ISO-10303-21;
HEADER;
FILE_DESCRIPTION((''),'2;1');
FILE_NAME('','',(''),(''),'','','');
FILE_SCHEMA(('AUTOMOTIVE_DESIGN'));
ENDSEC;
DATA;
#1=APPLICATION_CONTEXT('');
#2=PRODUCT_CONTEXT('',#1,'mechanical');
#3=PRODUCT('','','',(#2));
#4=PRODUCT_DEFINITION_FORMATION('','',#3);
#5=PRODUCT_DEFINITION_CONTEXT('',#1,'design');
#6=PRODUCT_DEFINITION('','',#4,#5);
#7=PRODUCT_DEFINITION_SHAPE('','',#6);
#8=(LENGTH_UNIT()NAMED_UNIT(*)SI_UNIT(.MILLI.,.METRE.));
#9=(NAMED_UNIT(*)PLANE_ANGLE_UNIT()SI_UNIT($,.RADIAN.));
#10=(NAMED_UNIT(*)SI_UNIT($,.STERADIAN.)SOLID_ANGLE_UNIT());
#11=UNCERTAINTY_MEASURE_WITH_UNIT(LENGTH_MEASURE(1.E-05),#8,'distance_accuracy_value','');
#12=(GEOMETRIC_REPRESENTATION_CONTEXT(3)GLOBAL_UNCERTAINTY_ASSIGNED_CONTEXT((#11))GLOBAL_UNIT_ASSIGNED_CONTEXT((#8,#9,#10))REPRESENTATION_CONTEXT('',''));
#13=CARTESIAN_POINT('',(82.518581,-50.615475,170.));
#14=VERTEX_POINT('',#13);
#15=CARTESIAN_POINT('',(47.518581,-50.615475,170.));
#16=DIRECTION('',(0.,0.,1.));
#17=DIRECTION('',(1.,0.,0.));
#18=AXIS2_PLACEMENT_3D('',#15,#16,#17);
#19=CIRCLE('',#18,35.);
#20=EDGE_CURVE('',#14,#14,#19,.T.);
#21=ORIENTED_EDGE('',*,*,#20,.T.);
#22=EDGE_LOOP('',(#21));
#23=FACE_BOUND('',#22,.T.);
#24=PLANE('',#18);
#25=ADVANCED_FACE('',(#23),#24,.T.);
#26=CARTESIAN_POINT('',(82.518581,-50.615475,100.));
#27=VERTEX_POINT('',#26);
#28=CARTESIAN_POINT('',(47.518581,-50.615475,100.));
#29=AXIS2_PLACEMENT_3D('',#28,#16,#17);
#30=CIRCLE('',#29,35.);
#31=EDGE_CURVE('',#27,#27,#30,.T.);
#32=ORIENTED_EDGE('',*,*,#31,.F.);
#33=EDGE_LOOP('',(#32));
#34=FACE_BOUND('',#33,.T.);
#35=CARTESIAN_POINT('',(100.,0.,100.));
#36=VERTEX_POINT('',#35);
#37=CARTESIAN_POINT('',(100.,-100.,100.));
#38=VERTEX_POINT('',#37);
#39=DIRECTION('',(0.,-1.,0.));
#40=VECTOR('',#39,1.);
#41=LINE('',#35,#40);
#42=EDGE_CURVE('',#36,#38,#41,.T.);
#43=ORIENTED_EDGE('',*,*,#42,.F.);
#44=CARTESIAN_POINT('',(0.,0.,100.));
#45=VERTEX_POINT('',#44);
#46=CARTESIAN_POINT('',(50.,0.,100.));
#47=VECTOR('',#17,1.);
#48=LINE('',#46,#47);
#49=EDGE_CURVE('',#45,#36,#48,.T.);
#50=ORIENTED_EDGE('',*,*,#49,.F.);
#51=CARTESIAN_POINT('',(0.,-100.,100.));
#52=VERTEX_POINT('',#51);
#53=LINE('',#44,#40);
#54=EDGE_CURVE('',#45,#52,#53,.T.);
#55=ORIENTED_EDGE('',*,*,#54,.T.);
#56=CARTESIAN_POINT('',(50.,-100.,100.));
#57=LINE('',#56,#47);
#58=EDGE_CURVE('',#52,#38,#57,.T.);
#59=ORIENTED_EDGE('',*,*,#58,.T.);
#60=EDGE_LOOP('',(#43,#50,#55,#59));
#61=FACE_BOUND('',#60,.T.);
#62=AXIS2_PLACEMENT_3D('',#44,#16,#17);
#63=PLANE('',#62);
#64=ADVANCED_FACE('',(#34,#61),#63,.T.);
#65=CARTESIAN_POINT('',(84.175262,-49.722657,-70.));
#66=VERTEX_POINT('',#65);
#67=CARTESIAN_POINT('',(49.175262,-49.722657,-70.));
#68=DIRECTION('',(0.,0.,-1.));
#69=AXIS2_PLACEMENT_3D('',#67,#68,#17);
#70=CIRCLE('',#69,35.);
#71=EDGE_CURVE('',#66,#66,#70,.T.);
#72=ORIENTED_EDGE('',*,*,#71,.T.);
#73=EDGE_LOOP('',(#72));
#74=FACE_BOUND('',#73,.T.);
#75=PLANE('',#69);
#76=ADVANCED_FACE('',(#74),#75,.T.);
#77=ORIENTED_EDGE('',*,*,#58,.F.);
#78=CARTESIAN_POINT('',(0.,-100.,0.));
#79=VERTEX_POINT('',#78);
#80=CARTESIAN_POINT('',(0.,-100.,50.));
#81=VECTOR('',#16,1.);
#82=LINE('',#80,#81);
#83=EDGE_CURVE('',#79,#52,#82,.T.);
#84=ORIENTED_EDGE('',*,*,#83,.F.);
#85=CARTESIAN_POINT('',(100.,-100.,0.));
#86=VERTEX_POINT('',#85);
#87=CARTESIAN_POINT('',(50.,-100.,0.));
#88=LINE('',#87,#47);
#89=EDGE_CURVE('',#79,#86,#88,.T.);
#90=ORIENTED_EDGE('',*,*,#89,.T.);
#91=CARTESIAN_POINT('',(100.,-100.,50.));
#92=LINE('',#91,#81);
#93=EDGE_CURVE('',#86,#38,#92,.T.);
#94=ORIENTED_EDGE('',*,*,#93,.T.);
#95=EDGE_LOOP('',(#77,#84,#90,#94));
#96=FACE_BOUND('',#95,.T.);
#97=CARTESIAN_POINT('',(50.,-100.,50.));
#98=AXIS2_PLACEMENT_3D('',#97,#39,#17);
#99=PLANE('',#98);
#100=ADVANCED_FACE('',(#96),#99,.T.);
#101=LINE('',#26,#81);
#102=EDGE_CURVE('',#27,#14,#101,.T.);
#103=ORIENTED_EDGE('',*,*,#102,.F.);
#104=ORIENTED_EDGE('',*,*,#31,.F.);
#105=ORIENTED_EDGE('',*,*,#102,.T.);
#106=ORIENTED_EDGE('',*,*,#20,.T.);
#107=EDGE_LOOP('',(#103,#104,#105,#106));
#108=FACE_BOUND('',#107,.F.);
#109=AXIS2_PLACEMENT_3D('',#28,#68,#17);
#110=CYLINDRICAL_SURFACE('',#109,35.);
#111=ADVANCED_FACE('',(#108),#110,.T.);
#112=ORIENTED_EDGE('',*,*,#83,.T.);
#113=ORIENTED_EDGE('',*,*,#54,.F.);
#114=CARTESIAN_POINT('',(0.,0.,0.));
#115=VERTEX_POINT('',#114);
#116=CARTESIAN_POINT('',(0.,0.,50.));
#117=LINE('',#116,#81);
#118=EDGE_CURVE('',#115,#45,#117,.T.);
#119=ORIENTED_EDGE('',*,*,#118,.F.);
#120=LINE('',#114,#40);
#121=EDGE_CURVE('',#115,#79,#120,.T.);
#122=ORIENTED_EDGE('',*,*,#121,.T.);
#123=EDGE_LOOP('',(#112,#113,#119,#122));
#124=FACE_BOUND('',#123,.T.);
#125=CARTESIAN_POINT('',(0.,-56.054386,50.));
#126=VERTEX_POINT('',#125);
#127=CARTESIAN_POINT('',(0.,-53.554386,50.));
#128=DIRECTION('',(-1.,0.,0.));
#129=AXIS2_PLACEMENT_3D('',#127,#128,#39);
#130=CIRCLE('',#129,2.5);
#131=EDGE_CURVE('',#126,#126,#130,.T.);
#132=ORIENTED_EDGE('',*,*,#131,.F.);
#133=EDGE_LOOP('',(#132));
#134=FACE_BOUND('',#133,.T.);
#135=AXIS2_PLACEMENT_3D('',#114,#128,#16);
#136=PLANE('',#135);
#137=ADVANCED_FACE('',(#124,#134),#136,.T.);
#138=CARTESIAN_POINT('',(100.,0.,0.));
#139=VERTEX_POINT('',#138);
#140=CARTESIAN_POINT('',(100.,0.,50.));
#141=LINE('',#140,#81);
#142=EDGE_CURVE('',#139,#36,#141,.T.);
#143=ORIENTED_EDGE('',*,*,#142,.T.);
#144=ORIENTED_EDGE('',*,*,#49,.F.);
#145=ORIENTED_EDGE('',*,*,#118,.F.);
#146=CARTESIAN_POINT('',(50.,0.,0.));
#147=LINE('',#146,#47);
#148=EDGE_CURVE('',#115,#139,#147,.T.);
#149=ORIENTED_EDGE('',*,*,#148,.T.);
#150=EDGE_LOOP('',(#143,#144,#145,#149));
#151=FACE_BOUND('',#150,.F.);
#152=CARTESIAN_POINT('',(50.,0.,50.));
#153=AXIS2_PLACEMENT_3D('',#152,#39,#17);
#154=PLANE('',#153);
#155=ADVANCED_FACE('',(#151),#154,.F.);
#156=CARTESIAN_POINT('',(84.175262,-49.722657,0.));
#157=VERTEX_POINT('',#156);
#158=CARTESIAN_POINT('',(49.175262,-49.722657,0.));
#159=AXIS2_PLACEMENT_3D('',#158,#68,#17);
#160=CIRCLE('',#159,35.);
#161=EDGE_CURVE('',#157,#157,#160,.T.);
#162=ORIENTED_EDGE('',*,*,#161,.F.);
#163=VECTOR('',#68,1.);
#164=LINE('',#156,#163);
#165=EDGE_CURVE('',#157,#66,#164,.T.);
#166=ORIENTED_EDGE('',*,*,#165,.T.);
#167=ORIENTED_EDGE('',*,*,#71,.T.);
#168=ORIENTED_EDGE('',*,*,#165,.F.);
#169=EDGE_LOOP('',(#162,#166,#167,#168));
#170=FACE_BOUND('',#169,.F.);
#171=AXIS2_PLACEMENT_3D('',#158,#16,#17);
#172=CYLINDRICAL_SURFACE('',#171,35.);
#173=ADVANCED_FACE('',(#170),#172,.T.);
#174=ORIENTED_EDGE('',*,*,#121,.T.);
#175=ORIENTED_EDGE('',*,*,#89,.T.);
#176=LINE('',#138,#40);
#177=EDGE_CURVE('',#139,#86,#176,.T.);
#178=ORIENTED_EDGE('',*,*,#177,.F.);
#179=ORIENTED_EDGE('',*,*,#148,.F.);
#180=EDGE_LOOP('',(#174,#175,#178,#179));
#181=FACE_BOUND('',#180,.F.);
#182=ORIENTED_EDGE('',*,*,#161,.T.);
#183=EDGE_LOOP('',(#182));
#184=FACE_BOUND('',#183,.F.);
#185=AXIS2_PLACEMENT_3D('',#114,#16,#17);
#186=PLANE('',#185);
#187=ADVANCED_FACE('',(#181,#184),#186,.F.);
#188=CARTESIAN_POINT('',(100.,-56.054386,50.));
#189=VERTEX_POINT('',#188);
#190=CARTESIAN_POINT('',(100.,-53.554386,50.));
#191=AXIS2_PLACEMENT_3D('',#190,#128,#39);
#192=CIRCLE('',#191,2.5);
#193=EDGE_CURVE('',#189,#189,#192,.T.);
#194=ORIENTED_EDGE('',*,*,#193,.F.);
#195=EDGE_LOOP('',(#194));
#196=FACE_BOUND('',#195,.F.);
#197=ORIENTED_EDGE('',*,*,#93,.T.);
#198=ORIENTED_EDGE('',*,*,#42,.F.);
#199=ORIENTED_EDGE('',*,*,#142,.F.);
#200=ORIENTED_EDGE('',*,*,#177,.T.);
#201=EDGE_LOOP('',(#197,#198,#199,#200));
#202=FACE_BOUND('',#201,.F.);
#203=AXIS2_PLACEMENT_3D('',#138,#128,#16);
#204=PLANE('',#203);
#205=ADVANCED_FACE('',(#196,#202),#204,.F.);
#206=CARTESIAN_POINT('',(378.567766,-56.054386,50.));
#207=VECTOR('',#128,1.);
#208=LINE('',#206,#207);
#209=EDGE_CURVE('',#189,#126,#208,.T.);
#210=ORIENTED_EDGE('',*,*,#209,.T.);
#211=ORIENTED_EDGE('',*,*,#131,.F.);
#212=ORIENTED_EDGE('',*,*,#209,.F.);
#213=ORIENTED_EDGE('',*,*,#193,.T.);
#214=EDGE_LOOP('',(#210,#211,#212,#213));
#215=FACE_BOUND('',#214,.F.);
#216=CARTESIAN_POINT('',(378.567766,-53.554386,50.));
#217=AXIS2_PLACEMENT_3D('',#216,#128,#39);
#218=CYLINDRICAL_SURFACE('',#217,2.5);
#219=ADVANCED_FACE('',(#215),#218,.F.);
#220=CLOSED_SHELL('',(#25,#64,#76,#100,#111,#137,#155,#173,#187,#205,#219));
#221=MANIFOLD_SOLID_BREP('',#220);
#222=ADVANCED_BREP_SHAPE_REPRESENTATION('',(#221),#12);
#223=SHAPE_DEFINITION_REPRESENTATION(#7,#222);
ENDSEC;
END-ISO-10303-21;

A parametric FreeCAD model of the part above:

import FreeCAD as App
import Part
import Sketcher

V = App.Vector

doc = App.newDocument("Part")
body = doc.addObject("PartDesign::Body", "Body")

sketch1 = doc.addObject("Sketcher::SketchObject", "Sketch")
body.addObject(sketch1)
sketch1.AttachmentSupport = (doc.XZ_Plane, [""])
sketch1.MapMode = "FlatFace"
sketch1.addGeometry([
    Part.LineSegment(V(0, 100, 0), V(0, 0, 0)),
    Part.LineSegment(V(0, 0, 0), V(100, 0, 0)),
    Part.LineSegment(V(100, 0, 0), V(100, 100, 0)),
    Part.LineSegment(V(100, 100, 0), V(0, 100, 0)),
], False)
sketch1.addConstraint([
    Sketcher.Constraint("Coincident", 0, 2, 1, 1),
    Sketcher.Constraint("Coincident", 1, 2, 2, 1),
    Sketcher.Constraint("Coincident", 2, 2, 3, 1),
    Sketcher.Constraint("Coincident", 3, 2, 0, 1),
    Sketcher.Constraint("Vertical", 0),
    Sketcher.Constraint("Horizontal", 1),
    Sketcher.Constraint("Vertical", 2),
    Sketcher.Constraint("Horizontal", 3),
    Sketcher.Constraint("Coincident", 0, 2, -1, 1),
    Sketcher.Constraint("Equal", 3, 0),
    Sketcher.Constraint("DistanceX", 1, 1, 1, 2, 100.0),
])
pad1 = doc.addObject("PartDesign::Pad", "Pad")
body.addObject(pad1)
pad1.Profile = sketch1
pad1.Length = 100

sketch2 = doc.addObject("Sketcher::SketchObject", "Sketch001")
body.addObject(sketch2)
sketch2.AttachmentSupport = (doc.XY_Plane, [""])
sketch2.MapMode = "FlatFace"
sketch2.AttachmentOffset = App.Placement(V(0, 0, 100), App.Rotation())
sketch2.addGeometry(Part.Circle(V(47.518581, -50.615475, 0), V(0, 0, 1), 35), False)
sketch2.addConstraint([
    Sketcher.Constraint("Diameter", 0, 70.0),
    Sketcher.Constraint("DistanceX", -1, 1, 0, 3, 47.518581),
    Sketcher.Constraint("DistanceY", 0, 3, -1, 1, 50.615475),
])
pad2 = doc.addObject("PartDesign::Pad", "Pad001")
body.addObject(pad2)
pad2.Profile = sketch2
pad2.Length = 70

sketch3 = doc.addObject("Sketcher::SketchObject", "Sketch002")
body.addObject(sketch3)
sketch3.AttachmentSupport = (doc.XY_Plane, [""])
sketch3.MapMode = "FlatFace"
sketch3.addGeometry(Part.Circle(V(49.175262, -49.722657, 0), V(0, 0, 1), 35), False)
sketch3.addConstraint([
    Sketcher.Constraint("Diameter", 0, 70.0),
    Sketcher.Constraint("DistanceX", -1, 1, 0, 3, 49.175262),
    Sketcher.Constraint("DistanceY", 0, 3, -1, 1, 49.722657),
])
pad3 = doc.addObject("PartDesign::Pad", "Pad002")
body.addObject(pad3)
pad3.Profile = sketch3
pad3.Length = 70
pad3.Reversed = True

sketch4 = doc.addObject("Sketcher::SketchObject", "Sketch003")
body.addObject(sketch4)
sketch4.AttachmentSupport = (doc.YZ_Plane, [""])
sketch4.MapMode = "FlatFace"
sketch4.AttachmentOffset = App.Placement(V(0, 0, 100), App.Rotation())
sketch4.addGeometry(Part.Circle(V(-53.554386, 50, 0), V(0, 0, 1), 2.5), False)
sketch4.addConstraint([
    Sketcher.Constraint("Diameter", 0, 5.0),
    Sketcher.Constraint("DistanceY", -1, 1, 0, 3, 50.0),
    Sketcher.Constraint("DistanceX", 0, 3, -1, 1, 53.554386),
])
doc.recompute()
hole = doc.addObject("PartDesign::Hole", "Hole")
body.addObject(hole)
hole.Profile = sketch4
hole.ThreadType = "None"
hole.Diameter = 5
hole.DepthType = "ThroughAll"

doc.recompute()
